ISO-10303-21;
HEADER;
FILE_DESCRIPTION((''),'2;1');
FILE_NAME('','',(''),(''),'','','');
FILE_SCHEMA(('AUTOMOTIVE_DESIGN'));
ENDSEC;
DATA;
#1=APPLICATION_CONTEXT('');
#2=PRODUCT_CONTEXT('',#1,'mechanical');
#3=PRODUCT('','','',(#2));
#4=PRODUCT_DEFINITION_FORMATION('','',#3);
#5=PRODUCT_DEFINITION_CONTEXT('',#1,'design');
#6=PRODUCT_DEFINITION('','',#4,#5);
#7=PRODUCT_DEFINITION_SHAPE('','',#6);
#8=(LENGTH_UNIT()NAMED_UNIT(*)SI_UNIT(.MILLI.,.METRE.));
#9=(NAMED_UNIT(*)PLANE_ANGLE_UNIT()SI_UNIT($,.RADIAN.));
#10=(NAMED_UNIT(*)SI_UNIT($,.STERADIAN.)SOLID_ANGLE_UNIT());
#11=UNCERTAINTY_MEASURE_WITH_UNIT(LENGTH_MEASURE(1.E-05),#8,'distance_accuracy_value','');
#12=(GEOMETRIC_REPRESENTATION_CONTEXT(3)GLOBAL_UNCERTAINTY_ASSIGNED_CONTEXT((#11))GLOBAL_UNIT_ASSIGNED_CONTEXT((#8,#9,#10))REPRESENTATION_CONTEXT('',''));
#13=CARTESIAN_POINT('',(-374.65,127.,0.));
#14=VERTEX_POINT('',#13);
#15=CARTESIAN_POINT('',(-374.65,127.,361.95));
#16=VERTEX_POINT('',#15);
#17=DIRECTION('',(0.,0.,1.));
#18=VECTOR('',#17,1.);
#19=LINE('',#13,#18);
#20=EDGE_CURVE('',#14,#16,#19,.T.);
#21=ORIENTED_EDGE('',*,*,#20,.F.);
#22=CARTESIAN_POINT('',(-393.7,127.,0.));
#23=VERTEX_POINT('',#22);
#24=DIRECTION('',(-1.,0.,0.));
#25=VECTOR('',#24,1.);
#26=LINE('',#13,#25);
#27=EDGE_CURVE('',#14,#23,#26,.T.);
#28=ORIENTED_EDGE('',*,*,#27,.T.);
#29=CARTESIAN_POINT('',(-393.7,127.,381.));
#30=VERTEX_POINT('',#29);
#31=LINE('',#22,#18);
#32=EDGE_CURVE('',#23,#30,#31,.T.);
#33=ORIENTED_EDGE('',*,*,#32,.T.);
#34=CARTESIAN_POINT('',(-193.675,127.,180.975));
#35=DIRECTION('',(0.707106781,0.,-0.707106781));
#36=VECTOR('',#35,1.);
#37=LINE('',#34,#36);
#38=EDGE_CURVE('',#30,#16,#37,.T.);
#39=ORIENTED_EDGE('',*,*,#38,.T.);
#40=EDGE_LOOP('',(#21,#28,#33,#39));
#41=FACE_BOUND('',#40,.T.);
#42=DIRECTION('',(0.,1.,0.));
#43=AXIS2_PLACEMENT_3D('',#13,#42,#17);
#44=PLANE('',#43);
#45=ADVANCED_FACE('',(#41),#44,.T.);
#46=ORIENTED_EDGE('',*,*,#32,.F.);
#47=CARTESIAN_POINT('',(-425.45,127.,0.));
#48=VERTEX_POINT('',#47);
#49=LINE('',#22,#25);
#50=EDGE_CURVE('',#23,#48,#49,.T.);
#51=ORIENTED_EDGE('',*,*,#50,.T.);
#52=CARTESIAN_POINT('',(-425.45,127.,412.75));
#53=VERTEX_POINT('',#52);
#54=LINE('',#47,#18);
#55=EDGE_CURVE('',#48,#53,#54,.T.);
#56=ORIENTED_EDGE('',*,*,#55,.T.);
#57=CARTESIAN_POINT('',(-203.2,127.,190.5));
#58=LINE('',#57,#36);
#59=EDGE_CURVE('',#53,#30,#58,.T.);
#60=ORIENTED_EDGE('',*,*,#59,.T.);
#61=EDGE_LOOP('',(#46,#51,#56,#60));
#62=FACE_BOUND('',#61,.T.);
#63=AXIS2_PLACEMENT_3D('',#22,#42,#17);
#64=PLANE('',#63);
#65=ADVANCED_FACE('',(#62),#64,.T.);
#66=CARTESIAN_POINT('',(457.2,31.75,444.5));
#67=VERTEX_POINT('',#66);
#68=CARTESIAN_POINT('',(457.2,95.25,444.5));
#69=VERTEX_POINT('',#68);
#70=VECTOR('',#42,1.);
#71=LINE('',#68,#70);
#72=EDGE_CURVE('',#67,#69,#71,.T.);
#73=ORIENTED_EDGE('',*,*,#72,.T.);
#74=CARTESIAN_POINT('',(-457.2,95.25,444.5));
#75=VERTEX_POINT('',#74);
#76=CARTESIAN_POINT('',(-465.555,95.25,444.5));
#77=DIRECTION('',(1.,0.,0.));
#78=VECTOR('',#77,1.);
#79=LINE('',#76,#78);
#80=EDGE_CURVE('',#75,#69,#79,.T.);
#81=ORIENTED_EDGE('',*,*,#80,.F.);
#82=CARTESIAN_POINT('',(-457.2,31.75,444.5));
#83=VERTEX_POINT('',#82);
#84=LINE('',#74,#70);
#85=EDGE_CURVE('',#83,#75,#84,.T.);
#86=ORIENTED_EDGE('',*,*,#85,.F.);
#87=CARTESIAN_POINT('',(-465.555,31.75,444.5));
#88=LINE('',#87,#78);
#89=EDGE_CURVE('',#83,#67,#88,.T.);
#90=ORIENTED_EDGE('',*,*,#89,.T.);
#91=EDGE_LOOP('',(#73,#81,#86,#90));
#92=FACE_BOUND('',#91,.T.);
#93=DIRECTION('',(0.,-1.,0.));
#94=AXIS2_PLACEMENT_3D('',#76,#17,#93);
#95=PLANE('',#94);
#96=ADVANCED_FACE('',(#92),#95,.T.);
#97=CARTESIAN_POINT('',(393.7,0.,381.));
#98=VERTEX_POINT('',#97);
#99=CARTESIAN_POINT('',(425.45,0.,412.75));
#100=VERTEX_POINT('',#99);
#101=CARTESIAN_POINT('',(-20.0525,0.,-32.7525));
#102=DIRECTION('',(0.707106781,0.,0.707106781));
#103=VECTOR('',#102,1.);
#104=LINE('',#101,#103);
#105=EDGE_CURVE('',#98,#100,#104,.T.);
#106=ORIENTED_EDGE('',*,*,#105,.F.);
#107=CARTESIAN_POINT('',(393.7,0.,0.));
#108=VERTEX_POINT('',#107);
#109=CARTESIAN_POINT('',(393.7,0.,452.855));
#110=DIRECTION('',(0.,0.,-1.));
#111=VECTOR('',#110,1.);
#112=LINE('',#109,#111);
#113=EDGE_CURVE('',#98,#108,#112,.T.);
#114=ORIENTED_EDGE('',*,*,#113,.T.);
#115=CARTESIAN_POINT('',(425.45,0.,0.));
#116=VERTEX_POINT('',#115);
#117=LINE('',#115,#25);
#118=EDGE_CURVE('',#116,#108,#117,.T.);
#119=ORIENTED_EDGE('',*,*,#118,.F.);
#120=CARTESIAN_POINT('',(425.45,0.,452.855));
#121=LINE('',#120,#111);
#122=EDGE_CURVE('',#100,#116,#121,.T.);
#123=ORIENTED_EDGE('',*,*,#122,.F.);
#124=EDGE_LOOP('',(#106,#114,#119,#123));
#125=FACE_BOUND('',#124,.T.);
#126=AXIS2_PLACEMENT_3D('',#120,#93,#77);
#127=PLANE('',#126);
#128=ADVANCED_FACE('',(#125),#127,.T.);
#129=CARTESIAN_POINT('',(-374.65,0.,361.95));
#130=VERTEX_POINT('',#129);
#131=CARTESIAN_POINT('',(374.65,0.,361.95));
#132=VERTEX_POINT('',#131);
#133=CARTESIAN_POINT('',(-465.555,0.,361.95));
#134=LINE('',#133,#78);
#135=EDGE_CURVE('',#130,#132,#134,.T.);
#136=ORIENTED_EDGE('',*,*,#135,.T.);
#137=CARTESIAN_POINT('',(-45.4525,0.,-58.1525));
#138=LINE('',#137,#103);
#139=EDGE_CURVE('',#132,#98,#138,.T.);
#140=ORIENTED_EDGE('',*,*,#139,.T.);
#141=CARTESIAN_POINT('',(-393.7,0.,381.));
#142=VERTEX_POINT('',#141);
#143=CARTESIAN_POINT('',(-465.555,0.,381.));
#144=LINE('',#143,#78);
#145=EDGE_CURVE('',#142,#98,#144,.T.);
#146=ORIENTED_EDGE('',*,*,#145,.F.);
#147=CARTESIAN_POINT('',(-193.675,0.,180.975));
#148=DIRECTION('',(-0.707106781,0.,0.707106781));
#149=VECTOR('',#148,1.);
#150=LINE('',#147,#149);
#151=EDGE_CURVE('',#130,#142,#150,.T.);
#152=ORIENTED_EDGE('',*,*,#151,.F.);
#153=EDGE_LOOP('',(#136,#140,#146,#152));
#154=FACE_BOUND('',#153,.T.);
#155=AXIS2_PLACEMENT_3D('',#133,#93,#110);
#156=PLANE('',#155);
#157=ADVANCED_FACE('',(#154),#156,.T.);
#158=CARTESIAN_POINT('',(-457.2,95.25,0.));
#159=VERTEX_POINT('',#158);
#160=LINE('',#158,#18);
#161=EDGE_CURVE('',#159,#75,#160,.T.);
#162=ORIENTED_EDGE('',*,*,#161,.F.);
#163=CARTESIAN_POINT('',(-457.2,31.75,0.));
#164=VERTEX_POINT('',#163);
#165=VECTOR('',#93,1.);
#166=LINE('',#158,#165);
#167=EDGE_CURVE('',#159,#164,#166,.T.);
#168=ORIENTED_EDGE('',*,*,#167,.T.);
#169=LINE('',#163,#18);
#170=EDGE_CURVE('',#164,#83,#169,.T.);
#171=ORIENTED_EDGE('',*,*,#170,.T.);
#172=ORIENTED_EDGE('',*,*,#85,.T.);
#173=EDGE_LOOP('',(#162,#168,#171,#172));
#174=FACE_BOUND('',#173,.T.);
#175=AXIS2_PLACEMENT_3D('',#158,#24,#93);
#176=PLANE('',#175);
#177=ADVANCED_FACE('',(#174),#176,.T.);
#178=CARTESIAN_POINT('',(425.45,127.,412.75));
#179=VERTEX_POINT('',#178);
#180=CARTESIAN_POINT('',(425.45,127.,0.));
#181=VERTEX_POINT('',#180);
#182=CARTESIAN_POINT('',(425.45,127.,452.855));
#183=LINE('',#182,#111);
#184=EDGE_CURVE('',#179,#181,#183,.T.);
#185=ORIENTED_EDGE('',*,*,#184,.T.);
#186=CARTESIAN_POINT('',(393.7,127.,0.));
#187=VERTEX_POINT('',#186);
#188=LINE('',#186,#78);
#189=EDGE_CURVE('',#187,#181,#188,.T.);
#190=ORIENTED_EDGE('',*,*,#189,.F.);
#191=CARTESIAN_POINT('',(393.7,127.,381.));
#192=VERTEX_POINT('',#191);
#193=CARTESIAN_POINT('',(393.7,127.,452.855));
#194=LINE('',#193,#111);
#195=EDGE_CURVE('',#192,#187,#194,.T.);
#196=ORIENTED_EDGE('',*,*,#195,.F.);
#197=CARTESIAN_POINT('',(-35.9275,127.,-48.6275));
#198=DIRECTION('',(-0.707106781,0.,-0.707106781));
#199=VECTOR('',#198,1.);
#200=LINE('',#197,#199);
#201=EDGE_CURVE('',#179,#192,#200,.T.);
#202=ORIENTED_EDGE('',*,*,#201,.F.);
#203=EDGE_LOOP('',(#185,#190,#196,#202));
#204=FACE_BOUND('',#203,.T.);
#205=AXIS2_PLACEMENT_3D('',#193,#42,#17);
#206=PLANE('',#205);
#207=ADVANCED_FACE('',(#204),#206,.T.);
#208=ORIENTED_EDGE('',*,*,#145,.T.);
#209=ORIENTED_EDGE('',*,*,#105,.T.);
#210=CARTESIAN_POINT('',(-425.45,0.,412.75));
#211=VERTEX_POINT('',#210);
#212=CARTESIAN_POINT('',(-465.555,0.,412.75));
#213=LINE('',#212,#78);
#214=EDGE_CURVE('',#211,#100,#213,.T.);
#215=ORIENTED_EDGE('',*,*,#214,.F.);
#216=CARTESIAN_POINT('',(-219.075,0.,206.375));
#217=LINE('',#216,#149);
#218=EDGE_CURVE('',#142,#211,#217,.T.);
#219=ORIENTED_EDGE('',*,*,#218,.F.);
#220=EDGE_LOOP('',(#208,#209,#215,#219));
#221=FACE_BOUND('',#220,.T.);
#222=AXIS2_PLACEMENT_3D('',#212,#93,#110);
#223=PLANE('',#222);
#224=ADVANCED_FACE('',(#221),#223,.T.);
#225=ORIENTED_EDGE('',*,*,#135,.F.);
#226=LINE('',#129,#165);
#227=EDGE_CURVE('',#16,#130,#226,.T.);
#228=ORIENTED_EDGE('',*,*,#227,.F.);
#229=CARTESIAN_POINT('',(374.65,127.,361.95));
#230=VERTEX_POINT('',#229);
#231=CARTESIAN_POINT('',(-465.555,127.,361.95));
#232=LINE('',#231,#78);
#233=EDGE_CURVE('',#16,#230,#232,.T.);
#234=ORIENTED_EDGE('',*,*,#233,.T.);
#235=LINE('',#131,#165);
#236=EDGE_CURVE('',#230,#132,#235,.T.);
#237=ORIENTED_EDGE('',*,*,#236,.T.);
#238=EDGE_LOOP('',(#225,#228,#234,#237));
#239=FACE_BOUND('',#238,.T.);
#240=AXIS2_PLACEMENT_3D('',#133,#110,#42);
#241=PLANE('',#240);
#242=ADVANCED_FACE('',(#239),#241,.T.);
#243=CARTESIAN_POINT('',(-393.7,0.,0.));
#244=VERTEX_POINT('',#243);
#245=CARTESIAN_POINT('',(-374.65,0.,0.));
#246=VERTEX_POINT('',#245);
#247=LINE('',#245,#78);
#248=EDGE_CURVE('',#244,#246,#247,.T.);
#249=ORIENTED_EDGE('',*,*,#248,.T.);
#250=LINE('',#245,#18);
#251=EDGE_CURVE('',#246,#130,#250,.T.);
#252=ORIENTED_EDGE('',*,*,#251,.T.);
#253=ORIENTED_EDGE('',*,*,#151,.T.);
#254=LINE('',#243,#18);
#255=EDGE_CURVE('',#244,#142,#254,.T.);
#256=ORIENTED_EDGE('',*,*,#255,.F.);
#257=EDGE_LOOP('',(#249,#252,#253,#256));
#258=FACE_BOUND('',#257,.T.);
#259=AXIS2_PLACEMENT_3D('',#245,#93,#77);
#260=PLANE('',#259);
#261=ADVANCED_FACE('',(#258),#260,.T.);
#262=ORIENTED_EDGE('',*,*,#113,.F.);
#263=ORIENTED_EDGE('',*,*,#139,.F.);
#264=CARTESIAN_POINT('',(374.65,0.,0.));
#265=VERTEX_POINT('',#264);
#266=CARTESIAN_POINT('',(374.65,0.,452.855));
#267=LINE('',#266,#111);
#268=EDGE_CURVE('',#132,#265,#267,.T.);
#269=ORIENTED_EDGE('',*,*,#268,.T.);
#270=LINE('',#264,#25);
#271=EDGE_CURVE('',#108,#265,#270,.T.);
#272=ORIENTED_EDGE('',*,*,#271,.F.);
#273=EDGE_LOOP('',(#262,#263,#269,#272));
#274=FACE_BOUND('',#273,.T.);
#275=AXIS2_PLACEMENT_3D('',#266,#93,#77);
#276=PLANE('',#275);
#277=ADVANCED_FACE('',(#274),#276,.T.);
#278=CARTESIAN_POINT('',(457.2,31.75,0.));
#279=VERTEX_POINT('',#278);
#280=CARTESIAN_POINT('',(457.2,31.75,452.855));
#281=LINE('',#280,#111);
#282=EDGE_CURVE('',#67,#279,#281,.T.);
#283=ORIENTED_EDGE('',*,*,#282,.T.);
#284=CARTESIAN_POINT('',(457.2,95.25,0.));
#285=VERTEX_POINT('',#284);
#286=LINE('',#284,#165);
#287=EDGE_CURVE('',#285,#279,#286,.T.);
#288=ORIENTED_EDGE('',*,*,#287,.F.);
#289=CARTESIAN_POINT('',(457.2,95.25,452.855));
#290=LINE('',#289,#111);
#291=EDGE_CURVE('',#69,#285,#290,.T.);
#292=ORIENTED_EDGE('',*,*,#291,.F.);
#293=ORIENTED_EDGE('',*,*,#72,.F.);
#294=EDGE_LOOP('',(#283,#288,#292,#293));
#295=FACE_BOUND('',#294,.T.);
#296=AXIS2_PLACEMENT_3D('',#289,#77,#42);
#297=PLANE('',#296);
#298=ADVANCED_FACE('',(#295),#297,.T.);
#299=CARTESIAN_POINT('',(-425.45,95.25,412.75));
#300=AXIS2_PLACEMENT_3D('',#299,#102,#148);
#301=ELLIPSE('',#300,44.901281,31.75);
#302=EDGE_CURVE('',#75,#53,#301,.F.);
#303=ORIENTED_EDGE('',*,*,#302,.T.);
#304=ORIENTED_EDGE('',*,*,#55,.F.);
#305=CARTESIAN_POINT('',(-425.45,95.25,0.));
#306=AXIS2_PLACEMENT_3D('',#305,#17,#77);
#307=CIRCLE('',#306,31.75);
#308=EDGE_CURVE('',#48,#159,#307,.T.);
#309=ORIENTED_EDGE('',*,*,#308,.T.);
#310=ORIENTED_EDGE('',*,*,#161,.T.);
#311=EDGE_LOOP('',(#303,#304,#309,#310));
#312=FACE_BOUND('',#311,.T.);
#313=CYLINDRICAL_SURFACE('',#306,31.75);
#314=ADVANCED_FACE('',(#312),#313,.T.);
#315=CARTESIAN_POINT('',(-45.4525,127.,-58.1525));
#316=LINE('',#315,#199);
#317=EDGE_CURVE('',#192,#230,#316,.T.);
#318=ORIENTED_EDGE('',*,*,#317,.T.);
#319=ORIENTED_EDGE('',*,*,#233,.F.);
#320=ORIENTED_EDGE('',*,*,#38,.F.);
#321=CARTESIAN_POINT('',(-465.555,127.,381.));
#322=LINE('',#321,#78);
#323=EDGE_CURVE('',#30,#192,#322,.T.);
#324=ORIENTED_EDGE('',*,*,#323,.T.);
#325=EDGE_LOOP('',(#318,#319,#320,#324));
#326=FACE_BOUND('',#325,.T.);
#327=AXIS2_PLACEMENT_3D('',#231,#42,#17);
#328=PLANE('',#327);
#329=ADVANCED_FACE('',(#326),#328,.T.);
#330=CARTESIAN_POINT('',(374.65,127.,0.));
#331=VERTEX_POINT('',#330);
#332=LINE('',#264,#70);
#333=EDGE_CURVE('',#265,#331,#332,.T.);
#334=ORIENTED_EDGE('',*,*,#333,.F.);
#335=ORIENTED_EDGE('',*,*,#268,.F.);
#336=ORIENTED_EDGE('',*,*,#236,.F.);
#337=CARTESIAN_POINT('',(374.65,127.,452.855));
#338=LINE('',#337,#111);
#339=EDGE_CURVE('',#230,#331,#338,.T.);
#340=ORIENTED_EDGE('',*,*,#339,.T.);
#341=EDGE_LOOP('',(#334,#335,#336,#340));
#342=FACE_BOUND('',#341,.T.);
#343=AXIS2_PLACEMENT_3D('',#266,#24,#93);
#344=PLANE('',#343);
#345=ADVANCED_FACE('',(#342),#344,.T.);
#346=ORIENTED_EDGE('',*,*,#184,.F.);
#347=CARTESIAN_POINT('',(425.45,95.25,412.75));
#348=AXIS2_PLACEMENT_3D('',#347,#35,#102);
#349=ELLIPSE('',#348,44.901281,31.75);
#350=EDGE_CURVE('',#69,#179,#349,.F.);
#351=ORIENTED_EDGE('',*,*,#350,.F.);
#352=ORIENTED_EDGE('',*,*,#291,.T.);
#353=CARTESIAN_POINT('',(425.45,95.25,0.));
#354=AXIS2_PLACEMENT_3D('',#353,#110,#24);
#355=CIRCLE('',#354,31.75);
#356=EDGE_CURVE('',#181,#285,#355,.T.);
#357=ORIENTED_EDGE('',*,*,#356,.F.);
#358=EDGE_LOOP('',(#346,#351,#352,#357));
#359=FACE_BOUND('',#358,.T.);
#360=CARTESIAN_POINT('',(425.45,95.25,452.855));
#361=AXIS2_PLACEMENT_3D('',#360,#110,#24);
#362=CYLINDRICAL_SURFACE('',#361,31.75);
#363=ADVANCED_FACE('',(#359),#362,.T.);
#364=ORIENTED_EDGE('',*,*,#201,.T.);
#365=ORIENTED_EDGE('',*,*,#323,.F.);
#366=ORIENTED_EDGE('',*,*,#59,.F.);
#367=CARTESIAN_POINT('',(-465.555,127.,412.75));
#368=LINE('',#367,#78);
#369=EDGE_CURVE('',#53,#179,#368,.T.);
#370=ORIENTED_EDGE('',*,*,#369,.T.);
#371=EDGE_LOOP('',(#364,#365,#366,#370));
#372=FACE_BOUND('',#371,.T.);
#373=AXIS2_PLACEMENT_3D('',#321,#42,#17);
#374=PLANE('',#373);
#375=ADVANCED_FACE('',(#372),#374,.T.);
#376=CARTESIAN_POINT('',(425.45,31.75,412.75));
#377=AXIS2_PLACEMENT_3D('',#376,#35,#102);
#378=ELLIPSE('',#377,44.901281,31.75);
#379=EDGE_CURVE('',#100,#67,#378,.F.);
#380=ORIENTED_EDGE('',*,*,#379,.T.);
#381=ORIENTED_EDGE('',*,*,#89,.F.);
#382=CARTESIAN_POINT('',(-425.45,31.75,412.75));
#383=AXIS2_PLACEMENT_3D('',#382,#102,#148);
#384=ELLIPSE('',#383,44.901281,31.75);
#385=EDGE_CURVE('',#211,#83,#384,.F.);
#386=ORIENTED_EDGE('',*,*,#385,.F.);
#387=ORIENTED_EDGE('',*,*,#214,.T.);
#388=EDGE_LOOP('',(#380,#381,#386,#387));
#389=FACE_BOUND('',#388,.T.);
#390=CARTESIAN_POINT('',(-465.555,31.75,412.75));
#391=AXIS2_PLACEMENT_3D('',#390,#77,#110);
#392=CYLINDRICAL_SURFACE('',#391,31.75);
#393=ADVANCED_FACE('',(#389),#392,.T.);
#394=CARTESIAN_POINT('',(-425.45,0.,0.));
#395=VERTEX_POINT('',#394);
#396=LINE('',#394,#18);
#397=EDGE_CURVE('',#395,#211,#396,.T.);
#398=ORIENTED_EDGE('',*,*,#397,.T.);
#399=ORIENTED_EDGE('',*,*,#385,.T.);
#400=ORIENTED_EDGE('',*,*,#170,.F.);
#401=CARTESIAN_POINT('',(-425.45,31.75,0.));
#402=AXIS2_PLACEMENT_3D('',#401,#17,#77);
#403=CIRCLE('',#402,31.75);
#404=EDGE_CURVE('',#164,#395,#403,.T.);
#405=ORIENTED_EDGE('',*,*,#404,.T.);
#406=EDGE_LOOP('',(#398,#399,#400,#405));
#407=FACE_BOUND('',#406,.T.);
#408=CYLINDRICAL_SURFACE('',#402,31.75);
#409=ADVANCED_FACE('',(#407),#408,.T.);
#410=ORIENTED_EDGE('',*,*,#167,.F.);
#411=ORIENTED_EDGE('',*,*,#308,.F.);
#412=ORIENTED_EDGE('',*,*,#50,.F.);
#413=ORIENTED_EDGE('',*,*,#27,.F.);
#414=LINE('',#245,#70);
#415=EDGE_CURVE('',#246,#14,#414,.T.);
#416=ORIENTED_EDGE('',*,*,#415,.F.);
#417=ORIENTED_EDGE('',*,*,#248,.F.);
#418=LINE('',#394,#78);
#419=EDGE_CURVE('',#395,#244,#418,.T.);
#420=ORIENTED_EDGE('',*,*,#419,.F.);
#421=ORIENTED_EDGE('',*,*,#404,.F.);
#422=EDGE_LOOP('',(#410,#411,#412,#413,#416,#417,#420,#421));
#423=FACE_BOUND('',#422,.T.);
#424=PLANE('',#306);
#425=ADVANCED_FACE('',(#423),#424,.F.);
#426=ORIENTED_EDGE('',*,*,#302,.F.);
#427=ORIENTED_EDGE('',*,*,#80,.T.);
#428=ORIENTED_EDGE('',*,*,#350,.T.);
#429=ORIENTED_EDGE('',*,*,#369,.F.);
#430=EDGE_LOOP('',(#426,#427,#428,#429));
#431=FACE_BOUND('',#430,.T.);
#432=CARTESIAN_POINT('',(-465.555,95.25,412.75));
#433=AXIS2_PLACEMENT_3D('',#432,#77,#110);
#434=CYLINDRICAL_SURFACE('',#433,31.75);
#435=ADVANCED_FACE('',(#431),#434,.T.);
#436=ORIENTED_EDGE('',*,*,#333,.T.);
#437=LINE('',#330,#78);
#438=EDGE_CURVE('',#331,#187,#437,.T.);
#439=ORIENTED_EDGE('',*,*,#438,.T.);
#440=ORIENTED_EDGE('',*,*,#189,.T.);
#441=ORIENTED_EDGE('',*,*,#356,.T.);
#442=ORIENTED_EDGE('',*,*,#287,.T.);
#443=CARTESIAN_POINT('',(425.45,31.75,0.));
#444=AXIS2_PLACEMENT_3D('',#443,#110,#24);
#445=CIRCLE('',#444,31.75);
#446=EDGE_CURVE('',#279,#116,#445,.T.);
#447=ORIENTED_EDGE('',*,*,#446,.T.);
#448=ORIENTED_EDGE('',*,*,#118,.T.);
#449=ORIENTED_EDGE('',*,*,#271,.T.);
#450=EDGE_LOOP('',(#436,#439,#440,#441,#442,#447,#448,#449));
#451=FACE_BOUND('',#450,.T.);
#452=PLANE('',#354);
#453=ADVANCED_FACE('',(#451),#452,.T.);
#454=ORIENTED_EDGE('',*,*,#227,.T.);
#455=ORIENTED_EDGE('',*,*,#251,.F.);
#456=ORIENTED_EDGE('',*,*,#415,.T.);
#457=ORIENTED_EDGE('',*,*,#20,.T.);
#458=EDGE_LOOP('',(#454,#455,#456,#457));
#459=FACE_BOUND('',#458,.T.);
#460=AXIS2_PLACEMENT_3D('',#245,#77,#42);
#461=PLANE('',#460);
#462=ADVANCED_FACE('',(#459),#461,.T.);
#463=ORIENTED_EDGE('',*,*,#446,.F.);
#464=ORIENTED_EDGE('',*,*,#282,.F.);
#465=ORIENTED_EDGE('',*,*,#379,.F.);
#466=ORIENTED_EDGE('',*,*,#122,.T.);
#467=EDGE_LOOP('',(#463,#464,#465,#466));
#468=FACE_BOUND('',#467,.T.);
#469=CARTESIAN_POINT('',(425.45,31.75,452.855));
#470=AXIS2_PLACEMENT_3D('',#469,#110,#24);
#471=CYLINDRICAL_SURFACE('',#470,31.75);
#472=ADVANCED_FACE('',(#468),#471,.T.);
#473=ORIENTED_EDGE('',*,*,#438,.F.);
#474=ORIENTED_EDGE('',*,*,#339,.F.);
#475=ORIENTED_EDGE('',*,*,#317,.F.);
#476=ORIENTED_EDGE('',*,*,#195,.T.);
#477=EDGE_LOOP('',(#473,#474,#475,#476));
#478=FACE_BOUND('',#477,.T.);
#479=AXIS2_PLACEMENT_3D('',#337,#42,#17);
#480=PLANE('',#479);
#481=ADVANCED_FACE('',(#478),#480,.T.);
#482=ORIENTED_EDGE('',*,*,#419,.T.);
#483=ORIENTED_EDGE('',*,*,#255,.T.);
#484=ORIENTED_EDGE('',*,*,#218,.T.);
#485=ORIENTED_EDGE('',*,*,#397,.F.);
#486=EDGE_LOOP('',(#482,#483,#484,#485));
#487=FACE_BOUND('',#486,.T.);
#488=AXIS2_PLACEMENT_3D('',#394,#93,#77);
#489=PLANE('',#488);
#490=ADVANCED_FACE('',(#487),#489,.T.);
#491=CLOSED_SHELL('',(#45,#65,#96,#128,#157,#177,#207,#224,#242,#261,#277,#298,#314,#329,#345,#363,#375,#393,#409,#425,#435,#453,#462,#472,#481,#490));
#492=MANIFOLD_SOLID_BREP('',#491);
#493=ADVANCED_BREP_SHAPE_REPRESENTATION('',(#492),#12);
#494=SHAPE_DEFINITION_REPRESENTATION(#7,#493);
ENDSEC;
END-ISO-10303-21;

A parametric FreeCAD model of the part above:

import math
import FreeCAD as App
import Part
import Sketcher
Q = App.Units.Quantity

doc = App.newDocument("Part")
params = doc.addObject("Spreadsheet::Sheet", "Params")
for row, (alias, value) in enumerate([
    ("sketch1_width", "2 in"),
    ("sketch1_height", "5 in"),
    ("sketch1_radius", "1.25 in"),
    ("sketch2_width", "29.5 in"),
    ("sketch2_height", "14.25 in"),
], start=1):
    params.set(f"A{row}", alias)
    params.set(f"B{row}", "=" + value)
    params.setAlias(f"B{row}", alias)

body = doc.addObject("PartDesign::Body", "Body")

# Sketch on XY plane
sketch1 = body.newObject("Sketcher::SketchObject", "Sketch")
sketch1.AttachmentSupport = (doc.getObject("XY_Plane"), [""])
sketch1.MapMode = "FlatFace"
sketch1.addGeometry([
    Part.ArcOfCircle(Part.Circle(App.Vector(-425, 95, 0), App.Vector(0, 0, 1), 32), math.radians(90), math.radians(180)),  # 0
    Part.LineSegment(App.Vector(-457, 95, 0), App.Vector(-457, 32, 0)),  # 1
    Part.ArcOfCircle(Part.Circle(App.Vector(-425, 32, 0), App.Vector(0, 0, 1), 32), math.radians(180), math.radians(270)),  # 2
    Part.LineSegment(App.Vector(-425, 0, 0), App.Vector(-375, 0, 0)),  # 3
    Part.LineSegment(App.Vector(-375, 0, 0), App.Vector(-375, 127, 0)),  # 4
    Part.LineSegment(App.Vector(-375, 127, 0), App.Vector(-425, 127, 0)),  # 5
], False)
sketch1.addConstraint([
    Sketcher.Constraint("Tangent", 0, 2, 1, 1),
    Sketcher.Constraint("Tangent", 1, 2, 2, 1),
    Sketcher.Constraint("Tangent", 2, 2, 3, 1),
    Sketcher.Constraint("Coincident", 3, 2, 4, 1),
    Sketcher.Constraint("Coincident", 4, 2, 5, 1),
    Sketcher.Constraint("Tangent", 5, 2, 0, 1),
    Sketcher.Constraint("Vertical", 1),
    Sketcher.Constraint("Horizontal", 3),
    Sketcher.Constraint("Vertical", 4),
    Sketcher.Constraint("Horizontal", 5),
    Sketcher.Constraint("Equal", 0, 2),
    Sketcher.Constraint("PointOnObject", 2, 2, -1),
    Sketcher.Constraint("DistanceX", 3, 1, 3, 2, Q("2 in")),
    Sketcher.Constraint("DistanceY", 4, 1, 4, 2, Q("5 in")),
    Sketcher.Constraint("Radius", 0, Q("1.25 in")),
    Sketcher.Constraint("DistanceX", 0, 2, -1, 1, Q("18 in")),
])
sketch1.setExpression("Constraints[12]", "Params.sketch1_width")
sketch1.setExpression("Constraints[13]", "Params.sketch1_height")
sketch1.setExpression("Constraints[14]", "Params.sketch1_radius")

# Sketch on XZ plane
sketch2 = body.newObject("Sketcher::SketchObject", "Sketch001")
sketch2.AttachmentSupport = (doc.getObject("XZ_Plane"), [""])
sketch2.MapMode = "FlatFace"
sketch2.addGeometry([
    Part.LineSegment(App.Vector(-375, 0, 0), App.Vector(-375, 362, 0)),
    Part.LineSegment(App.Vector(-375, 362, 0), App.Vector(375, 362, 0)),
    Part.LineSegment(App.Vector(375, 362, 0), App.Vector(375, 0, 0)),
], False)
sketch2.addConstraint([
    Sketcher.Constraint("Coincident", 0, 2, 1, 1),
    Sketcher.Constraint("Coincident", 1, 2, 2, 1),
    Sketcher.Constraint("Vertical", 0),
    Sketcher.Constraint("Horizontal", 1),
    Sketcher.Constraint("Vertical", 2),
    Sketcher.Constraint("Symmetric", 0, 1, 2, 2, -1, 1),
    Sketcher.Constraint("PointOnObject", 0, 1, -1),
    Sketcher.Constraint("DistanceX", 1, 1, 1, 2, Q("29.5 in")),
    Sketcher.Constraint("DistanceY", 0, 1, 0, 2, Q("14.25 in")),
])
sketch2.setExpression("Constraints[7]", "Params.sketch2_width")
sketch2.setExpression("Constraints[8]", "Params.sketch2_height")
doc.recompute()

additivepipe = body.newObject("PartDesign::AdditivePipe", "AdditivePipe")
additivepipe.Profile = sketch1
additivepipe.Spine = (sketch2, ["Edge1", "Edge2", "Edge3"])
additivepipe.Transition = "Right corner"

doc.recompute()
